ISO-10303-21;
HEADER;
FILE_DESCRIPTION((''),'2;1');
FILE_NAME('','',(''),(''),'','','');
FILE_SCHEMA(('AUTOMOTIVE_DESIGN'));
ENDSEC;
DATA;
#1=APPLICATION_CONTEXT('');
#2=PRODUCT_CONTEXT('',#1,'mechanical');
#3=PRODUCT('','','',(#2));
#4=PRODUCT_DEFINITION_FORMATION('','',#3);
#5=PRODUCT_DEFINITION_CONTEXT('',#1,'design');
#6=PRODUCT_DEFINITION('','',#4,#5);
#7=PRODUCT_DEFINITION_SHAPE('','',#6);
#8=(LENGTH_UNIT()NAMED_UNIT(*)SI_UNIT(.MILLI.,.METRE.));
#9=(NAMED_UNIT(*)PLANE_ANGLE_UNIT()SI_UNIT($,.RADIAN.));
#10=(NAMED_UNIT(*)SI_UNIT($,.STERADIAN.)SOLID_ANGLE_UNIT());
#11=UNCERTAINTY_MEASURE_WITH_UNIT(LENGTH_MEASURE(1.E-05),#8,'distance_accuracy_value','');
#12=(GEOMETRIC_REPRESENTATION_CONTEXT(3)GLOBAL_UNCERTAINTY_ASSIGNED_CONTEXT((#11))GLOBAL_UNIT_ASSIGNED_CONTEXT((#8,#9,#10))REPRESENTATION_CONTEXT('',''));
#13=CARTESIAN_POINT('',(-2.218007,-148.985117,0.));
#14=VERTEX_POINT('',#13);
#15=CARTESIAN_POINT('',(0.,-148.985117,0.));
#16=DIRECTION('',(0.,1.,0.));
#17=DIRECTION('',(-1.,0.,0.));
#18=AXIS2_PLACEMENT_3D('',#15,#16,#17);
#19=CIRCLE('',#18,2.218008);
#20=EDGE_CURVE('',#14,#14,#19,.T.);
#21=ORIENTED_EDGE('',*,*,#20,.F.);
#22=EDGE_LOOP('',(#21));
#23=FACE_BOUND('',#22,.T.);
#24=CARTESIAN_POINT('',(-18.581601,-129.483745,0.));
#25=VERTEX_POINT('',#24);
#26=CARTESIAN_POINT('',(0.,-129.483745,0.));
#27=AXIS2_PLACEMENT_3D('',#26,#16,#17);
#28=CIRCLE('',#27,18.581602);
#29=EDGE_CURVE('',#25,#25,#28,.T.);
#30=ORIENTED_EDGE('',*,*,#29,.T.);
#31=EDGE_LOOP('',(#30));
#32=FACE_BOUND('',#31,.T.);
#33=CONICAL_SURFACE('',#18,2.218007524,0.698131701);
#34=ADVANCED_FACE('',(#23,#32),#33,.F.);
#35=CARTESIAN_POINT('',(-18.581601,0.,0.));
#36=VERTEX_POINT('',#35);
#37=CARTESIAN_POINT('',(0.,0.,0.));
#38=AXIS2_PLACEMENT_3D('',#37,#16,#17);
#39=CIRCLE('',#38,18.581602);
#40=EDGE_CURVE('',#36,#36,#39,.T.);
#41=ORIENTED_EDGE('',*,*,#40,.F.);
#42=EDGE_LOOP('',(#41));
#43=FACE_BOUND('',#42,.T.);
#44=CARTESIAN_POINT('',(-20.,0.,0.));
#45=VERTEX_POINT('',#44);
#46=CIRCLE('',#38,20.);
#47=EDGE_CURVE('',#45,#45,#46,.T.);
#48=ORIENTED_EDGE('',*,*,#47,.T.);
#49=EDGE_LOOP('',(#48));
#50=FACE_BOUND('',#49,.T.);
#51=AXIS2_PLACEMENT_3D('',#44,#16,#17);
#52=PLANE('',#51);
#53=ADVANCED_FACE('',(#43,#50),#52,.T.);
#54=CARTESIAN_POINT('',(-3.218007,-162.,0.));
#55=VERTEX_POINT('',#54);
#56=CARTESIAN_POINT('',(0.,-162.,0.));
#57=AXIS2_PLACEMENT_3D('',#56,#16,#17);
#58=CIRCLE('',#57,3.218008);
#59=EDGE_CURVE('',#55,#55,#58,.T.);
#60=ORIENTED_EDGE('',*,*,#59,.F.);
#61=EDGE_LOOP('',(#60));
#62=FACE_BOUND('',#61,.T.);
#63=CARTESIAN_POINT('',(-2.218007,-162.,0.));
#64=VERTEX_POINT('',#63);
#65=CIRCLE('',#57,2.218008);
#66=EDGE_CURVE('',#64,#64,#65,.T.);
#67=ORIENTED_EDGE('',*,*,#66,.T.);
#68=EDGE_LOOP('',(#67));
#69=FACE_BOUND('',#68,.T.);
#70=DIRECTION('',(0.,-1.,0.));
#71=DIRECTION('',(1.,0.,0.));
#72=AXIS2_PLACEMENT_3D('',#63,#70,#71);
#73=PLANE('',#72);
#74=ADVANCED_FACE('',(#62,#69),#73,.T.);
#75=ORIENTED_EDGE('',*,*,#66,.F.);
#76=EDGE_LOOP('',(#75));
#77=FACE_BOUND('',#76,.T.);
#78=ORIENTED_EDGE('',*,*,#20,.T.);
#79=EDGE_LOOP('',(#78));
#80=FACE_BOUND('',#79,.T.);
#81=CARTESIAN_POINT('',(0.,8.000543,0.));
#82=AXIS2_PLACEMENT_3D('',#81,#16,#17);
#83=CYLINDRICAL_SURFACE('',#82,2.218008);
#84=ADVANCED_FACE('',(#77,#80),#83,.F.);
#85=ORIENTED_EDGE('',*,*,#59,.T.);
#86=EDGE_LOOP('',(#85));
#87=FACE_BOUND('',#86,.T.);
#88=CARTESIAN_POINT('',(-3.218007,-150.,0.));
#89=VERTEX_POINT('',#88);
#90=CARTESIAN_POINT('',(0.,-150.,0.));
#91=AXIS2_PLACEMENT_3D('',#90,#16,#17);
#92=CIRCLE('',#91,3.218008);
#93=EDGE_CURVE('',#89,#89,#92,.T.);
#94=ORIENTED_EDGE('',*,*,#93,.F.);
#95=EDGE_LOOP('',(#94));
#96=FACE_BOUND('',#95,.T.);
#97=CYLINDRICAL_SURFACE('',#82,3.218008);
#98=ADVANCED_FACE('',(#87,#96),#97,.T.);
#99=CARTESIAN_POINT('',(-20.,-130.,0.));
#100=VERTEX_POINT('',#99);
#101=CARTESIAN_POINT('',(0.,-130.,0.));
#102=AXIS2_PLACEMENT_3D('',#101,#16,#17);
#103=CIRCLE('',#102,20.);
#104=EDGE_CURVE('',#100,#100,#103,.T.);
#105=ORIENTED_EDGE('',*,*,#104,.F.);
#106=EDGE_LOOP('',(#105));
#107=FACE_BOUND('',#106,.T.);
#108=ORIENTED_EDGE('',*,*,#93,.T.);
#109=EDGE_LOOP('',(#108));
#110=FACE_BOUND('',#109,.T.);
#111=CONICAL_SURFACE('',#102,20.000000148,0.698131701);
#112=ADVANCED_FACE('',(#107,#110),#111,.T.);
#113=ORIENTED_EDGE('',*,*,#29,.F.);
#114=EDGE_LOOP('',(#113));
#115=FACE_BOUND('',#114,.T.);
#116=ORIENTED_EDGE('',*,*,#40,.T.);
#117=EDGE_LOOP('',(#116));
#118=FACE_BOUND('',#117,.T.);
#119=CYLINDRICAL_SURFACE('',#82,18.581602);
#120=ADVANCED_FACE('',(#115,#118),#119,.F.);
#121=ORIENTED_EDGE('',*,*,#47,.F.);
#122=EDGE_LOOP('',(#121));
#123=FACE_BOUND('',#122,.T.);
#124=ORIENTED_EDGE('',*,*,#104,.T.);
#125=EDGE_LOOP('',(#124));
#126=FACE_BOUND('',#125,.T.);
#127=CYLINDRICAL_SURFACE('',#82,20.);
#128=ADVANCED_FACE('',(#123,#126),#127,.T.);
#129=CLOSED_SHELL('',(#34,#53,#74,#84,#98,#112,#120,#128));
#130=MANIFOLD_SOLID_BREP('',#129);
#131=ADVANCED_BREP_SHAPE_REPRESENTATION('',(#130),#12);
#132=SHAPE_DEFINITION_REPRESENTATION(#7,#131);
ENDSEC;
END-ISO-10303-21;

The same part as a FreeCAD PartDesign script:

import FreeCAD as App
import Part
import Sketcher
Q = App.Units.Quantity


def add_polygon(sketch, points):
    """Adds a closed chain of lines whose ends are joined by coincident constraints."""
    first, n = sketch.GeometryCount, len(points)
    for a, b in zip(points, points[1:] + points[:1]):
        sketch.addGeometry(Part.LineSegment(App.Vector(*a, 0), App.Vector(*b, 0)), False)
    for i in range(n):
        sketch.addConstraint(Sketcher.Constraint("Coincident", first + i, 2, first + (i + 1) % n, 1))

doc = App.newDocument("Part")
body = doc.addObject("PartDesign::Body", "Body")

sketch1 = body.newObject("Sketcher::SketchObject", "Sketch")
sketch1.AttachmentSupport = (doc.getObject("XY_Plane"), [""])
sketch1.MapMode = "FlatFace"
add_polygon(sketch1, [(-18.6, -129.5), (-18.6, 0), (-20, 0), (-20, -130), (-3.2, -150), (-3.2, -162), (-2.2, -162), (-2.2, -149)])
sketch1.addConstraint(Sketcher.Constraint("Vertical", 0))
sketch1.addConstraint(Sketcher.Constraint("Horizontal", 1))
sketch1.addConstraint(Sketcher.Constraint("Vertical", 2))
sketch1.addConstraint(Sketcher.Constraint("Vertical", 4))
sketch1.addConstraint(Sketcher.Constraint("Horizontal", 5))
sketch1.addConstraint(Sketcher.Constraint("Vertical", 6))
sketch1.addConstraint(Sketcher.Constraint("PointOnObject", 0, 2, -1))
sketch1.addConstraint(Sketcher.Constraint("Parallel", 3, 7))
sketch1.addConstraint(Sketcher.Constraint("DistanceX", 5, 1, 5, 2, Q("1 mm")))
sketch1.addConstraint(Sketcher.Constraint("DistanceY", 2, 2, 2, 1, Q("130 mm")))
sketch1.addConstraint(Sketcher.Constraint("DistanceY", 4, 2, 4, 1, Q("12 mm")))
sketch1.addConstraint(Sketcher.Constraint("Angle", 3, Q("-50 deg")))
sketch1.addConstraint(Sketcher.Constraint("DistanceX", 1, 2, -1, 1, Q("20 mm")))
sketch1.addConstraint(Sketcher.Constraint("DistanceY", 3, 2, -1, 1, Q("150 mm")))
sketch1.addConstraint(Sketcher.Constraint("DistanceX", 1, 2, 1, 1, Q("1.418399 mm")))
sketch1.addConstraint(Sketcher.Constraint("DistanceY", 0, 1, 0, 2, Q("129.483745 mm")))
revolution = body.newObject("PartDesign::Revolution", "Revolution")
revolution.Profile = sketch1
revolution.ReferenceAxis = (sketch1, ["V_Axis"])
revolution.Angle = 360

doc.recompute()
